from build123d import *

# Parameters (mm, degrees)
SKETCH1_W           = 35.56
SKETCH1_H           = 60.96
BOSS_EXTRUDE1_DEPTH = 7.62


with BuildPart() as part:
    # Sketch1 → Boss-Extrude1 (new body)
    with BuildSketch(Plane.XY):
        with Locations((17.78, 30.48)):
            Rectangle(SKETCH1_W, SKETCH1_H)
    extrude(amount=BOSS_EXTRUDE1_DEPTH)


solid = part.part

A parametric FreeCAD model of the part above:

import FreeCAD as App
import Part
import Sketcher
Q = App.Units.Quantity


def add_polygon(sketch, points):
    """Adds a closed chain of lines whose ends are joined by coincident constraints."""
    first, n = sketch.GeometryCount, len(points)
    for a, b in zip(points, points[1:] + points[:1]):
        sketch.addGeometry(Part.LineSegment(App.Vector(*a, 0), App.Vector(*b, 0)), False)
    for i in range(n):
        sketch.addConstraint(Sketcher.Constraint("Coincident", first + i, 2, first + (i + 1) % n, 1))

doc = App.newDocument("Part")
body = doc.addObject("PartDesign::Body", "Body")

# Sketch on XY plane
sketch1 = body.newObject("Sketcher::SketchObject", "Sketch")
sketch1.AttachmentSupport = (doc.getObject("XY_Plane"), [""])
sketch1.MapMode = "FlatFace"
add_polygon(sketch1, [(0, 61), (0, 0), (36, 0), (36, 61)])  # lines 0-3
sketch1.addConstraint([
    Sketcher.Constraint("Vertical", 0),
    Sketcher.Constraint("Horizontal", 1),
    Sketcher.Constraint("Vertical", 2),
    Sketcher.Constraint("Horizontal", 3),
    Sketcher.Constraint("Coincident", 0, 2, -1, 1),
    Sketcher.Constraint("DistanceX", 1, 1, 1, 2, Q("1.4 in")),
    Sketcher.Constraint("DistanceY", 0, 2, 0, 1, Q("2.4 in")),
])
pad1 = body.newObject("PartDesign::Pad", "Pad")
pad1.Profile = sketch1
pad1.Length = Q("0.3 in")

doc.recompute()
